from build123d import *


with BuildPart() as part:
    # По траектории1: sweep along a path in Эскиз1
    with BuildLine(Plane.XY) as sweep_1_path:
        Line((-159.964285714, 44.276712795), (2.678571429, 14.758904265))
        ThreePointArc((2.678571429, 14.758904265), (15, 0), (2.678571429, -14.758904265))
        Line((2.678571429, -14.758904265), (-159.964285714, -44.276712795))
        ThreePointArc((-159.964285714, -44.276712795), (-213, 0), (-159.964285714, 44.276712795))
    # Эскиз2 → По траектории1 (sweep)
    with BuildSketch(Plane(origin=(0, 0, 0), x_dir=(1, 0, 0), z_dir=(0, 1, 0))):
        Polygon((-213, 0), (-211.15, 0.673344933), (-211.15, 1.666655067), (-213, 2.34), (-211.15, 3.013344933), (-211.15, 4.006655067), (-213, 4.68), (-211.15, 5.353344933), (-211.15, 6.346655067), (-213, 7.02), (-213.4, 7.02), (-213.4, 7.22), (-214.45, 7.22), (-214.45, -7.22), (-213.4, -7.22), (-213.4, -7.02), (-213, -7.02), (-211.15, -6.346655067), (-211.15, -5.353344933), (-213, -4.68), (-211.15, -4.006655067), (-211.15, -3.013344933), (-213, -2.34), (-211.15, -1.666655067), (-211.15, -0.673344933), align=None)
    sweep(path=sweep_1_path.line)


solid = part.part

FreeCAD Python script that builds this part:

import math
import FreeCAD as App
import Part
import Sketcher

V = App.Vector
Q = App.Units.Quantity

doc = App.newDocument("Part")
body = doc.addObject("PartDesign::Body", "Body")

# Sketch on XZ plane
sketch1 = body.newObject("Sketcher::SketchObject", "Sketch")
sketch1.AttachmentSupport = (doc.getObject("XZ_Plane"), [""])
sketch1.MapMode = "FlatFace"
sketch1.addGeometry([
    Part.LineSegment(V(-213, 0, 0), V(-211.15, -0.67, 0)),  # 0
    Part.LineSegment(V(-211.15, -0.67, 0), V(-211.15, -1.67, 0)),  # 1
    Part.LineSegment(V(-211.15, -1.67, 0), V(-213, -2.34, 0)),  # 2
    Part.LineSegment(V(-213, -2.34, 0), V(-211.15, -3.01, 0)),  # 3
    Part.LineSegment(V(-211.15, -3.01, 0), V(-211.15, -4.01, 0)),  # 4
    Part.LineSegment(V(-211.15, -4.01, 0), V(-213, -4.68, 0)),  # 5
    Part.LineSegment(V(-213, -4.68, 0), V(-211.15, -5.35, 0)),  # 6
    Part.LineSegment(V(-211.15, -5.35, 0), V(-211.15, -6.35, 0)),  # 7
    Part.LineSegment(V(-211.15, -6.35, 0), V(-213, -7.02, 0)),  # 8
    Part.LineSegment(V(-213, -7.02, 0), V(-213.4, -7.02, 0)),  # 9
    Part.LineSegment(V(-213.4, -7.02, 0), V(-213.4, -7.22, 0)),  # 10
    Part.LineSegment(V(-213.4, -7.22, 0), V(-214.45, -7.22, 0)),  # 11
    Part.LineSegment(V(-214.45, -7.22, 0), V(-214.45, 7.22, 0)),  # 12
    Part.LineSegment(V(-214.45, 7.22, 0), V(-213.4, 7.22, 0)),  # 13
    Part.LineSegment(V(-213.4, 7.22, 0), V(-213.4, 7.02, 0)),  # 14
    Part.LineSegment(V(-213.4, 7.02, 0), V(-213, 7.02, 0)),  # 15
    Part.LineSegment(V(-213, 7.02, 0), V(-211.15, 6.35, 0)),  # 16
    Part.LineSegment(V(-211.15, 6.35, 0), V(-211.15, 5.35, 0)),  # 17
    Part.LineSegment(V(-211.15, 5.35, 0), V(-213, 4.68, 0)),  # 18
    Part.LineSegment(V(-213, 4.68, 0), V(-211.15, 4.01, 0)),  # 19
    Part.LineSegment(V(-211.15, 4.01, 0), V(-211.15, 3.01, 0)),  # 20
    Part.LineSegment(V(-211.15, 3.01, 0), V(-213, 2.34, 0)),  # 21
    Part.LineSegment(V(-213, 2.34, 0), V(-211.15, 1.67, 0)),  # 22
    Part.LineSegment(V(-211.15, 1.67, 0), V(-211.15, 0.67, 0)),  # 23
    Part.LineSegment(V(-211.15, 0.67, 0), V(-213, 0, 0)),  # 24
], False)
sketch1.addConstraint([
    Sketcher.Constraint("Coincident", 0, 2, 1, 1),
    Sketcher.Constraint("Coincident", 1, 2, 2, 1),
    Sketcher.Constraint("Coincident", 2, 2, 3, 1),
    Sketcher.Constraint("Coincident", 3, 2, 4, 1),
    Sketcher.Constraint("Coincident", 4, 2, 5, 1),
    Sketcher.Constraint("Coincident", 5, 2, 6, 1),
    Sketcher.Constraint("Coincident", 6, 2, 7, 1),
    Sketcher.Constraint("Coincident", 7, 2, 8, 1),
    Sketcher.Constraint("Coincident", 8, 2, 9, 1),
    Sketcher.Constraint("Coincident", 9, 2, 10, 1),
    Sketcher.Constraint("Coincident", 10, 2, 11, 1),
    Sketcher.Constraint("Coincident", 11, 2, 12, 1),
    Sketcher.Constraint("Coincident", 12, 2, 13, 1),
    Sketcher.Constraint("Coincident", 13, 2, 14, 1),
    Sketcher.Constraint("Coincident", 14, 2, 15, 1),
    Sketcher.Constraint("Coincident", 15, 2, 16, 1),
    Sketcher.Constraint("Coincident", 16, 2, 17, 1),
    Sketcher.Constraint("Coincident", 17, 2, 18, 1),
    Sketcher.Constraint("Coincident", 18, 2, 19, 1),
    Sketcher.Constraint("Coincident", 19, 2, 20, 1),
    Sketcher.Constraint("Coincident", 20, 2, 21, 1),
    Sketcher.Constraint("Coincident", 21, 2, 22, 1),
    Sketcher.Constraint("Coincident", 22, 2, 23, 1),
    Sketcher.Constraint("Coincident", 23, 2, 24, 1),
    Sketcher.Constraint("Coincident", 24, 2, 0, 1),
    Sketcher.Constraint("Vertical", 1),
    Sketcher.Constraint("Vertical", 4),
    Sketcher.Constraint("Vertical", 7),
    Sketcher.Constraint("Horizontal", 9),
    Sketcher.Constraint("Vertical", 10),
    Sketcher.Constraint("Horizontal", 11),
    Sketcher.Constraint("Vertical", 12),
    Sketcher.Constraint("Horizontal", 13),
    Sketcher.Constraint("Vertical", 14),
    Sketcher.Constraint("Horizontal", 15),
    Sketcher.Constraint("Vertical", 17),
    Sketcher.Constraint("Vertical", 20),
    Sketcher.Constraint("Vertical", 23),
    Sketcher.Constraint("Symmetric", 10, 2, 13, 2, -1),
    Sketcher.Constraint("Symmetric", 8, 2, 15, 2, -1),
    Sketcher.Constraint("Symmetric", 7, 2, 16, 2, -1),
    Sketcher.Constraint("Symmetric", 5, 2, 18, 2, -1),
    Sketcher.Constraint("Symmetric", 4, 2, 19, 2, -1),
    Sketcher.Constraint("Symmetric", 2, 2, 21, 2, -1),
    Sketcher.Constraint("Symmetric", 1, 2, 22, 2, -1),
    Sketcher.Constraint("PointOnObject", 24, 2, -1),
    Sketcher.Constraint("Parallel", 0, 3),
    Sketcher.Constraint("Parallel", 2, 5),
    Sketcher.Constraint("Parallel", 3, 6),
    Sketcher.Constraint("Parallel", 5, 8),
    Sketcher.Constraint("Parallel", 6, 16),
    Sketcher.Constraint("Parallel", 8, 18),
    Sketcher.Constraint("Parallel", 18, 21),
    Sketcher.Constraint("Parallel", 21, 24),
    Sketcher.Constraint("Vertical", 1, 2, 3, 2),
    Sketcher.Constraint("Vertical", 2, 2, 5, 2),
    Sketcher.Constraint("Vertical", 4, 2, 6, 2),
    Sketcher.Constraint("Vertical", 5, 2, 8, 2),
    Sketcher.Constraint("Vertical", 21, 2, 24, 2),
    Sketcher.Constraint("Equal", 1, 4),
    Sketcher.Constraint("Equal", 4, 7),
    Sketcher.Constraint("Angle", 0, Q("-20 deg")),
    Sketcher.Constraint("DistanceX", 9, 2, 9, 1, 0.4),
    Sketcher.Constraint("DistanceY", 10, 2, 10, 1, 0.2),
    Sketcher.Constraint("DistanceX", 2, 2, -1, 1, 213.0),
    Sketcher.Constraint("DistanceX", 11, 2, 11, 1, 1.05),
    Sketcher.Constraint("DistanceY", 12, 1, 12, 2, 14.44),
    Sketcher.Constraint("DistanceX", 11, 2, 7, 2, 3.3),
])

# Sketch on XY plane
sketch2 = body.newObject("Sketcher::SketchObject", "Sketch001")
sketch2.AttachmentSupport = (doc.getObject("XY_Plane"), [""])
sketch2.MapMode = "FlatFace"
sketch2.addGeometry([
    Part.LineSegment(V(-160, 44, 0), V(3, 15, 0)),
    Part.ArcOfCircle(Part.Circle(V(0, 0, 0), V(0, 0, 1), 15), math.radians(-80), math.radians(80)),
    Part.LineSegment(V(3, -15, 0), V(-160, -44, 0)),
    Part.ArcOfCircle(Part.Circle(V(-168, 0, 0), V(0, 0, 1), 45), math.radians(80), math.radians(280)),
], False)
sketch2.addConstraint([
    Sketcher.Constraint("Tangent", 0, 2, 1, 2),
    Sketcher.Constraint("Tangent", 1, 1, 2, 1),
    Sketcher.Constraint("Tangent", 2, 2, 3, 2),
    Sketcher.Constraint("Tangent", 3, 1, 0, 1),
    Sketcher.Constraint("Coincident", 1, 3, -1, 1),
    Sketcher.Constraint("PointOnObject", 3, 3, -1),
    Sketcher.Constraint("Radius", 1, 15.0),
    Sketcher.Constraint("Radius", 3, 45.0),
    Sketcher.Constraint("DistanceX", 3, 3, -1, 1, 168.0),
])
doc.recompute()

additivepipe = body.newObject("PartDesign::AdditivePipe", "AdditivePipe")
additivepipe.Profile = sketch1
additivepipe.Spine = (sketch2, ["Edge1", "Edge2", "Edge3", "Edge4"])

doc.recompute()
